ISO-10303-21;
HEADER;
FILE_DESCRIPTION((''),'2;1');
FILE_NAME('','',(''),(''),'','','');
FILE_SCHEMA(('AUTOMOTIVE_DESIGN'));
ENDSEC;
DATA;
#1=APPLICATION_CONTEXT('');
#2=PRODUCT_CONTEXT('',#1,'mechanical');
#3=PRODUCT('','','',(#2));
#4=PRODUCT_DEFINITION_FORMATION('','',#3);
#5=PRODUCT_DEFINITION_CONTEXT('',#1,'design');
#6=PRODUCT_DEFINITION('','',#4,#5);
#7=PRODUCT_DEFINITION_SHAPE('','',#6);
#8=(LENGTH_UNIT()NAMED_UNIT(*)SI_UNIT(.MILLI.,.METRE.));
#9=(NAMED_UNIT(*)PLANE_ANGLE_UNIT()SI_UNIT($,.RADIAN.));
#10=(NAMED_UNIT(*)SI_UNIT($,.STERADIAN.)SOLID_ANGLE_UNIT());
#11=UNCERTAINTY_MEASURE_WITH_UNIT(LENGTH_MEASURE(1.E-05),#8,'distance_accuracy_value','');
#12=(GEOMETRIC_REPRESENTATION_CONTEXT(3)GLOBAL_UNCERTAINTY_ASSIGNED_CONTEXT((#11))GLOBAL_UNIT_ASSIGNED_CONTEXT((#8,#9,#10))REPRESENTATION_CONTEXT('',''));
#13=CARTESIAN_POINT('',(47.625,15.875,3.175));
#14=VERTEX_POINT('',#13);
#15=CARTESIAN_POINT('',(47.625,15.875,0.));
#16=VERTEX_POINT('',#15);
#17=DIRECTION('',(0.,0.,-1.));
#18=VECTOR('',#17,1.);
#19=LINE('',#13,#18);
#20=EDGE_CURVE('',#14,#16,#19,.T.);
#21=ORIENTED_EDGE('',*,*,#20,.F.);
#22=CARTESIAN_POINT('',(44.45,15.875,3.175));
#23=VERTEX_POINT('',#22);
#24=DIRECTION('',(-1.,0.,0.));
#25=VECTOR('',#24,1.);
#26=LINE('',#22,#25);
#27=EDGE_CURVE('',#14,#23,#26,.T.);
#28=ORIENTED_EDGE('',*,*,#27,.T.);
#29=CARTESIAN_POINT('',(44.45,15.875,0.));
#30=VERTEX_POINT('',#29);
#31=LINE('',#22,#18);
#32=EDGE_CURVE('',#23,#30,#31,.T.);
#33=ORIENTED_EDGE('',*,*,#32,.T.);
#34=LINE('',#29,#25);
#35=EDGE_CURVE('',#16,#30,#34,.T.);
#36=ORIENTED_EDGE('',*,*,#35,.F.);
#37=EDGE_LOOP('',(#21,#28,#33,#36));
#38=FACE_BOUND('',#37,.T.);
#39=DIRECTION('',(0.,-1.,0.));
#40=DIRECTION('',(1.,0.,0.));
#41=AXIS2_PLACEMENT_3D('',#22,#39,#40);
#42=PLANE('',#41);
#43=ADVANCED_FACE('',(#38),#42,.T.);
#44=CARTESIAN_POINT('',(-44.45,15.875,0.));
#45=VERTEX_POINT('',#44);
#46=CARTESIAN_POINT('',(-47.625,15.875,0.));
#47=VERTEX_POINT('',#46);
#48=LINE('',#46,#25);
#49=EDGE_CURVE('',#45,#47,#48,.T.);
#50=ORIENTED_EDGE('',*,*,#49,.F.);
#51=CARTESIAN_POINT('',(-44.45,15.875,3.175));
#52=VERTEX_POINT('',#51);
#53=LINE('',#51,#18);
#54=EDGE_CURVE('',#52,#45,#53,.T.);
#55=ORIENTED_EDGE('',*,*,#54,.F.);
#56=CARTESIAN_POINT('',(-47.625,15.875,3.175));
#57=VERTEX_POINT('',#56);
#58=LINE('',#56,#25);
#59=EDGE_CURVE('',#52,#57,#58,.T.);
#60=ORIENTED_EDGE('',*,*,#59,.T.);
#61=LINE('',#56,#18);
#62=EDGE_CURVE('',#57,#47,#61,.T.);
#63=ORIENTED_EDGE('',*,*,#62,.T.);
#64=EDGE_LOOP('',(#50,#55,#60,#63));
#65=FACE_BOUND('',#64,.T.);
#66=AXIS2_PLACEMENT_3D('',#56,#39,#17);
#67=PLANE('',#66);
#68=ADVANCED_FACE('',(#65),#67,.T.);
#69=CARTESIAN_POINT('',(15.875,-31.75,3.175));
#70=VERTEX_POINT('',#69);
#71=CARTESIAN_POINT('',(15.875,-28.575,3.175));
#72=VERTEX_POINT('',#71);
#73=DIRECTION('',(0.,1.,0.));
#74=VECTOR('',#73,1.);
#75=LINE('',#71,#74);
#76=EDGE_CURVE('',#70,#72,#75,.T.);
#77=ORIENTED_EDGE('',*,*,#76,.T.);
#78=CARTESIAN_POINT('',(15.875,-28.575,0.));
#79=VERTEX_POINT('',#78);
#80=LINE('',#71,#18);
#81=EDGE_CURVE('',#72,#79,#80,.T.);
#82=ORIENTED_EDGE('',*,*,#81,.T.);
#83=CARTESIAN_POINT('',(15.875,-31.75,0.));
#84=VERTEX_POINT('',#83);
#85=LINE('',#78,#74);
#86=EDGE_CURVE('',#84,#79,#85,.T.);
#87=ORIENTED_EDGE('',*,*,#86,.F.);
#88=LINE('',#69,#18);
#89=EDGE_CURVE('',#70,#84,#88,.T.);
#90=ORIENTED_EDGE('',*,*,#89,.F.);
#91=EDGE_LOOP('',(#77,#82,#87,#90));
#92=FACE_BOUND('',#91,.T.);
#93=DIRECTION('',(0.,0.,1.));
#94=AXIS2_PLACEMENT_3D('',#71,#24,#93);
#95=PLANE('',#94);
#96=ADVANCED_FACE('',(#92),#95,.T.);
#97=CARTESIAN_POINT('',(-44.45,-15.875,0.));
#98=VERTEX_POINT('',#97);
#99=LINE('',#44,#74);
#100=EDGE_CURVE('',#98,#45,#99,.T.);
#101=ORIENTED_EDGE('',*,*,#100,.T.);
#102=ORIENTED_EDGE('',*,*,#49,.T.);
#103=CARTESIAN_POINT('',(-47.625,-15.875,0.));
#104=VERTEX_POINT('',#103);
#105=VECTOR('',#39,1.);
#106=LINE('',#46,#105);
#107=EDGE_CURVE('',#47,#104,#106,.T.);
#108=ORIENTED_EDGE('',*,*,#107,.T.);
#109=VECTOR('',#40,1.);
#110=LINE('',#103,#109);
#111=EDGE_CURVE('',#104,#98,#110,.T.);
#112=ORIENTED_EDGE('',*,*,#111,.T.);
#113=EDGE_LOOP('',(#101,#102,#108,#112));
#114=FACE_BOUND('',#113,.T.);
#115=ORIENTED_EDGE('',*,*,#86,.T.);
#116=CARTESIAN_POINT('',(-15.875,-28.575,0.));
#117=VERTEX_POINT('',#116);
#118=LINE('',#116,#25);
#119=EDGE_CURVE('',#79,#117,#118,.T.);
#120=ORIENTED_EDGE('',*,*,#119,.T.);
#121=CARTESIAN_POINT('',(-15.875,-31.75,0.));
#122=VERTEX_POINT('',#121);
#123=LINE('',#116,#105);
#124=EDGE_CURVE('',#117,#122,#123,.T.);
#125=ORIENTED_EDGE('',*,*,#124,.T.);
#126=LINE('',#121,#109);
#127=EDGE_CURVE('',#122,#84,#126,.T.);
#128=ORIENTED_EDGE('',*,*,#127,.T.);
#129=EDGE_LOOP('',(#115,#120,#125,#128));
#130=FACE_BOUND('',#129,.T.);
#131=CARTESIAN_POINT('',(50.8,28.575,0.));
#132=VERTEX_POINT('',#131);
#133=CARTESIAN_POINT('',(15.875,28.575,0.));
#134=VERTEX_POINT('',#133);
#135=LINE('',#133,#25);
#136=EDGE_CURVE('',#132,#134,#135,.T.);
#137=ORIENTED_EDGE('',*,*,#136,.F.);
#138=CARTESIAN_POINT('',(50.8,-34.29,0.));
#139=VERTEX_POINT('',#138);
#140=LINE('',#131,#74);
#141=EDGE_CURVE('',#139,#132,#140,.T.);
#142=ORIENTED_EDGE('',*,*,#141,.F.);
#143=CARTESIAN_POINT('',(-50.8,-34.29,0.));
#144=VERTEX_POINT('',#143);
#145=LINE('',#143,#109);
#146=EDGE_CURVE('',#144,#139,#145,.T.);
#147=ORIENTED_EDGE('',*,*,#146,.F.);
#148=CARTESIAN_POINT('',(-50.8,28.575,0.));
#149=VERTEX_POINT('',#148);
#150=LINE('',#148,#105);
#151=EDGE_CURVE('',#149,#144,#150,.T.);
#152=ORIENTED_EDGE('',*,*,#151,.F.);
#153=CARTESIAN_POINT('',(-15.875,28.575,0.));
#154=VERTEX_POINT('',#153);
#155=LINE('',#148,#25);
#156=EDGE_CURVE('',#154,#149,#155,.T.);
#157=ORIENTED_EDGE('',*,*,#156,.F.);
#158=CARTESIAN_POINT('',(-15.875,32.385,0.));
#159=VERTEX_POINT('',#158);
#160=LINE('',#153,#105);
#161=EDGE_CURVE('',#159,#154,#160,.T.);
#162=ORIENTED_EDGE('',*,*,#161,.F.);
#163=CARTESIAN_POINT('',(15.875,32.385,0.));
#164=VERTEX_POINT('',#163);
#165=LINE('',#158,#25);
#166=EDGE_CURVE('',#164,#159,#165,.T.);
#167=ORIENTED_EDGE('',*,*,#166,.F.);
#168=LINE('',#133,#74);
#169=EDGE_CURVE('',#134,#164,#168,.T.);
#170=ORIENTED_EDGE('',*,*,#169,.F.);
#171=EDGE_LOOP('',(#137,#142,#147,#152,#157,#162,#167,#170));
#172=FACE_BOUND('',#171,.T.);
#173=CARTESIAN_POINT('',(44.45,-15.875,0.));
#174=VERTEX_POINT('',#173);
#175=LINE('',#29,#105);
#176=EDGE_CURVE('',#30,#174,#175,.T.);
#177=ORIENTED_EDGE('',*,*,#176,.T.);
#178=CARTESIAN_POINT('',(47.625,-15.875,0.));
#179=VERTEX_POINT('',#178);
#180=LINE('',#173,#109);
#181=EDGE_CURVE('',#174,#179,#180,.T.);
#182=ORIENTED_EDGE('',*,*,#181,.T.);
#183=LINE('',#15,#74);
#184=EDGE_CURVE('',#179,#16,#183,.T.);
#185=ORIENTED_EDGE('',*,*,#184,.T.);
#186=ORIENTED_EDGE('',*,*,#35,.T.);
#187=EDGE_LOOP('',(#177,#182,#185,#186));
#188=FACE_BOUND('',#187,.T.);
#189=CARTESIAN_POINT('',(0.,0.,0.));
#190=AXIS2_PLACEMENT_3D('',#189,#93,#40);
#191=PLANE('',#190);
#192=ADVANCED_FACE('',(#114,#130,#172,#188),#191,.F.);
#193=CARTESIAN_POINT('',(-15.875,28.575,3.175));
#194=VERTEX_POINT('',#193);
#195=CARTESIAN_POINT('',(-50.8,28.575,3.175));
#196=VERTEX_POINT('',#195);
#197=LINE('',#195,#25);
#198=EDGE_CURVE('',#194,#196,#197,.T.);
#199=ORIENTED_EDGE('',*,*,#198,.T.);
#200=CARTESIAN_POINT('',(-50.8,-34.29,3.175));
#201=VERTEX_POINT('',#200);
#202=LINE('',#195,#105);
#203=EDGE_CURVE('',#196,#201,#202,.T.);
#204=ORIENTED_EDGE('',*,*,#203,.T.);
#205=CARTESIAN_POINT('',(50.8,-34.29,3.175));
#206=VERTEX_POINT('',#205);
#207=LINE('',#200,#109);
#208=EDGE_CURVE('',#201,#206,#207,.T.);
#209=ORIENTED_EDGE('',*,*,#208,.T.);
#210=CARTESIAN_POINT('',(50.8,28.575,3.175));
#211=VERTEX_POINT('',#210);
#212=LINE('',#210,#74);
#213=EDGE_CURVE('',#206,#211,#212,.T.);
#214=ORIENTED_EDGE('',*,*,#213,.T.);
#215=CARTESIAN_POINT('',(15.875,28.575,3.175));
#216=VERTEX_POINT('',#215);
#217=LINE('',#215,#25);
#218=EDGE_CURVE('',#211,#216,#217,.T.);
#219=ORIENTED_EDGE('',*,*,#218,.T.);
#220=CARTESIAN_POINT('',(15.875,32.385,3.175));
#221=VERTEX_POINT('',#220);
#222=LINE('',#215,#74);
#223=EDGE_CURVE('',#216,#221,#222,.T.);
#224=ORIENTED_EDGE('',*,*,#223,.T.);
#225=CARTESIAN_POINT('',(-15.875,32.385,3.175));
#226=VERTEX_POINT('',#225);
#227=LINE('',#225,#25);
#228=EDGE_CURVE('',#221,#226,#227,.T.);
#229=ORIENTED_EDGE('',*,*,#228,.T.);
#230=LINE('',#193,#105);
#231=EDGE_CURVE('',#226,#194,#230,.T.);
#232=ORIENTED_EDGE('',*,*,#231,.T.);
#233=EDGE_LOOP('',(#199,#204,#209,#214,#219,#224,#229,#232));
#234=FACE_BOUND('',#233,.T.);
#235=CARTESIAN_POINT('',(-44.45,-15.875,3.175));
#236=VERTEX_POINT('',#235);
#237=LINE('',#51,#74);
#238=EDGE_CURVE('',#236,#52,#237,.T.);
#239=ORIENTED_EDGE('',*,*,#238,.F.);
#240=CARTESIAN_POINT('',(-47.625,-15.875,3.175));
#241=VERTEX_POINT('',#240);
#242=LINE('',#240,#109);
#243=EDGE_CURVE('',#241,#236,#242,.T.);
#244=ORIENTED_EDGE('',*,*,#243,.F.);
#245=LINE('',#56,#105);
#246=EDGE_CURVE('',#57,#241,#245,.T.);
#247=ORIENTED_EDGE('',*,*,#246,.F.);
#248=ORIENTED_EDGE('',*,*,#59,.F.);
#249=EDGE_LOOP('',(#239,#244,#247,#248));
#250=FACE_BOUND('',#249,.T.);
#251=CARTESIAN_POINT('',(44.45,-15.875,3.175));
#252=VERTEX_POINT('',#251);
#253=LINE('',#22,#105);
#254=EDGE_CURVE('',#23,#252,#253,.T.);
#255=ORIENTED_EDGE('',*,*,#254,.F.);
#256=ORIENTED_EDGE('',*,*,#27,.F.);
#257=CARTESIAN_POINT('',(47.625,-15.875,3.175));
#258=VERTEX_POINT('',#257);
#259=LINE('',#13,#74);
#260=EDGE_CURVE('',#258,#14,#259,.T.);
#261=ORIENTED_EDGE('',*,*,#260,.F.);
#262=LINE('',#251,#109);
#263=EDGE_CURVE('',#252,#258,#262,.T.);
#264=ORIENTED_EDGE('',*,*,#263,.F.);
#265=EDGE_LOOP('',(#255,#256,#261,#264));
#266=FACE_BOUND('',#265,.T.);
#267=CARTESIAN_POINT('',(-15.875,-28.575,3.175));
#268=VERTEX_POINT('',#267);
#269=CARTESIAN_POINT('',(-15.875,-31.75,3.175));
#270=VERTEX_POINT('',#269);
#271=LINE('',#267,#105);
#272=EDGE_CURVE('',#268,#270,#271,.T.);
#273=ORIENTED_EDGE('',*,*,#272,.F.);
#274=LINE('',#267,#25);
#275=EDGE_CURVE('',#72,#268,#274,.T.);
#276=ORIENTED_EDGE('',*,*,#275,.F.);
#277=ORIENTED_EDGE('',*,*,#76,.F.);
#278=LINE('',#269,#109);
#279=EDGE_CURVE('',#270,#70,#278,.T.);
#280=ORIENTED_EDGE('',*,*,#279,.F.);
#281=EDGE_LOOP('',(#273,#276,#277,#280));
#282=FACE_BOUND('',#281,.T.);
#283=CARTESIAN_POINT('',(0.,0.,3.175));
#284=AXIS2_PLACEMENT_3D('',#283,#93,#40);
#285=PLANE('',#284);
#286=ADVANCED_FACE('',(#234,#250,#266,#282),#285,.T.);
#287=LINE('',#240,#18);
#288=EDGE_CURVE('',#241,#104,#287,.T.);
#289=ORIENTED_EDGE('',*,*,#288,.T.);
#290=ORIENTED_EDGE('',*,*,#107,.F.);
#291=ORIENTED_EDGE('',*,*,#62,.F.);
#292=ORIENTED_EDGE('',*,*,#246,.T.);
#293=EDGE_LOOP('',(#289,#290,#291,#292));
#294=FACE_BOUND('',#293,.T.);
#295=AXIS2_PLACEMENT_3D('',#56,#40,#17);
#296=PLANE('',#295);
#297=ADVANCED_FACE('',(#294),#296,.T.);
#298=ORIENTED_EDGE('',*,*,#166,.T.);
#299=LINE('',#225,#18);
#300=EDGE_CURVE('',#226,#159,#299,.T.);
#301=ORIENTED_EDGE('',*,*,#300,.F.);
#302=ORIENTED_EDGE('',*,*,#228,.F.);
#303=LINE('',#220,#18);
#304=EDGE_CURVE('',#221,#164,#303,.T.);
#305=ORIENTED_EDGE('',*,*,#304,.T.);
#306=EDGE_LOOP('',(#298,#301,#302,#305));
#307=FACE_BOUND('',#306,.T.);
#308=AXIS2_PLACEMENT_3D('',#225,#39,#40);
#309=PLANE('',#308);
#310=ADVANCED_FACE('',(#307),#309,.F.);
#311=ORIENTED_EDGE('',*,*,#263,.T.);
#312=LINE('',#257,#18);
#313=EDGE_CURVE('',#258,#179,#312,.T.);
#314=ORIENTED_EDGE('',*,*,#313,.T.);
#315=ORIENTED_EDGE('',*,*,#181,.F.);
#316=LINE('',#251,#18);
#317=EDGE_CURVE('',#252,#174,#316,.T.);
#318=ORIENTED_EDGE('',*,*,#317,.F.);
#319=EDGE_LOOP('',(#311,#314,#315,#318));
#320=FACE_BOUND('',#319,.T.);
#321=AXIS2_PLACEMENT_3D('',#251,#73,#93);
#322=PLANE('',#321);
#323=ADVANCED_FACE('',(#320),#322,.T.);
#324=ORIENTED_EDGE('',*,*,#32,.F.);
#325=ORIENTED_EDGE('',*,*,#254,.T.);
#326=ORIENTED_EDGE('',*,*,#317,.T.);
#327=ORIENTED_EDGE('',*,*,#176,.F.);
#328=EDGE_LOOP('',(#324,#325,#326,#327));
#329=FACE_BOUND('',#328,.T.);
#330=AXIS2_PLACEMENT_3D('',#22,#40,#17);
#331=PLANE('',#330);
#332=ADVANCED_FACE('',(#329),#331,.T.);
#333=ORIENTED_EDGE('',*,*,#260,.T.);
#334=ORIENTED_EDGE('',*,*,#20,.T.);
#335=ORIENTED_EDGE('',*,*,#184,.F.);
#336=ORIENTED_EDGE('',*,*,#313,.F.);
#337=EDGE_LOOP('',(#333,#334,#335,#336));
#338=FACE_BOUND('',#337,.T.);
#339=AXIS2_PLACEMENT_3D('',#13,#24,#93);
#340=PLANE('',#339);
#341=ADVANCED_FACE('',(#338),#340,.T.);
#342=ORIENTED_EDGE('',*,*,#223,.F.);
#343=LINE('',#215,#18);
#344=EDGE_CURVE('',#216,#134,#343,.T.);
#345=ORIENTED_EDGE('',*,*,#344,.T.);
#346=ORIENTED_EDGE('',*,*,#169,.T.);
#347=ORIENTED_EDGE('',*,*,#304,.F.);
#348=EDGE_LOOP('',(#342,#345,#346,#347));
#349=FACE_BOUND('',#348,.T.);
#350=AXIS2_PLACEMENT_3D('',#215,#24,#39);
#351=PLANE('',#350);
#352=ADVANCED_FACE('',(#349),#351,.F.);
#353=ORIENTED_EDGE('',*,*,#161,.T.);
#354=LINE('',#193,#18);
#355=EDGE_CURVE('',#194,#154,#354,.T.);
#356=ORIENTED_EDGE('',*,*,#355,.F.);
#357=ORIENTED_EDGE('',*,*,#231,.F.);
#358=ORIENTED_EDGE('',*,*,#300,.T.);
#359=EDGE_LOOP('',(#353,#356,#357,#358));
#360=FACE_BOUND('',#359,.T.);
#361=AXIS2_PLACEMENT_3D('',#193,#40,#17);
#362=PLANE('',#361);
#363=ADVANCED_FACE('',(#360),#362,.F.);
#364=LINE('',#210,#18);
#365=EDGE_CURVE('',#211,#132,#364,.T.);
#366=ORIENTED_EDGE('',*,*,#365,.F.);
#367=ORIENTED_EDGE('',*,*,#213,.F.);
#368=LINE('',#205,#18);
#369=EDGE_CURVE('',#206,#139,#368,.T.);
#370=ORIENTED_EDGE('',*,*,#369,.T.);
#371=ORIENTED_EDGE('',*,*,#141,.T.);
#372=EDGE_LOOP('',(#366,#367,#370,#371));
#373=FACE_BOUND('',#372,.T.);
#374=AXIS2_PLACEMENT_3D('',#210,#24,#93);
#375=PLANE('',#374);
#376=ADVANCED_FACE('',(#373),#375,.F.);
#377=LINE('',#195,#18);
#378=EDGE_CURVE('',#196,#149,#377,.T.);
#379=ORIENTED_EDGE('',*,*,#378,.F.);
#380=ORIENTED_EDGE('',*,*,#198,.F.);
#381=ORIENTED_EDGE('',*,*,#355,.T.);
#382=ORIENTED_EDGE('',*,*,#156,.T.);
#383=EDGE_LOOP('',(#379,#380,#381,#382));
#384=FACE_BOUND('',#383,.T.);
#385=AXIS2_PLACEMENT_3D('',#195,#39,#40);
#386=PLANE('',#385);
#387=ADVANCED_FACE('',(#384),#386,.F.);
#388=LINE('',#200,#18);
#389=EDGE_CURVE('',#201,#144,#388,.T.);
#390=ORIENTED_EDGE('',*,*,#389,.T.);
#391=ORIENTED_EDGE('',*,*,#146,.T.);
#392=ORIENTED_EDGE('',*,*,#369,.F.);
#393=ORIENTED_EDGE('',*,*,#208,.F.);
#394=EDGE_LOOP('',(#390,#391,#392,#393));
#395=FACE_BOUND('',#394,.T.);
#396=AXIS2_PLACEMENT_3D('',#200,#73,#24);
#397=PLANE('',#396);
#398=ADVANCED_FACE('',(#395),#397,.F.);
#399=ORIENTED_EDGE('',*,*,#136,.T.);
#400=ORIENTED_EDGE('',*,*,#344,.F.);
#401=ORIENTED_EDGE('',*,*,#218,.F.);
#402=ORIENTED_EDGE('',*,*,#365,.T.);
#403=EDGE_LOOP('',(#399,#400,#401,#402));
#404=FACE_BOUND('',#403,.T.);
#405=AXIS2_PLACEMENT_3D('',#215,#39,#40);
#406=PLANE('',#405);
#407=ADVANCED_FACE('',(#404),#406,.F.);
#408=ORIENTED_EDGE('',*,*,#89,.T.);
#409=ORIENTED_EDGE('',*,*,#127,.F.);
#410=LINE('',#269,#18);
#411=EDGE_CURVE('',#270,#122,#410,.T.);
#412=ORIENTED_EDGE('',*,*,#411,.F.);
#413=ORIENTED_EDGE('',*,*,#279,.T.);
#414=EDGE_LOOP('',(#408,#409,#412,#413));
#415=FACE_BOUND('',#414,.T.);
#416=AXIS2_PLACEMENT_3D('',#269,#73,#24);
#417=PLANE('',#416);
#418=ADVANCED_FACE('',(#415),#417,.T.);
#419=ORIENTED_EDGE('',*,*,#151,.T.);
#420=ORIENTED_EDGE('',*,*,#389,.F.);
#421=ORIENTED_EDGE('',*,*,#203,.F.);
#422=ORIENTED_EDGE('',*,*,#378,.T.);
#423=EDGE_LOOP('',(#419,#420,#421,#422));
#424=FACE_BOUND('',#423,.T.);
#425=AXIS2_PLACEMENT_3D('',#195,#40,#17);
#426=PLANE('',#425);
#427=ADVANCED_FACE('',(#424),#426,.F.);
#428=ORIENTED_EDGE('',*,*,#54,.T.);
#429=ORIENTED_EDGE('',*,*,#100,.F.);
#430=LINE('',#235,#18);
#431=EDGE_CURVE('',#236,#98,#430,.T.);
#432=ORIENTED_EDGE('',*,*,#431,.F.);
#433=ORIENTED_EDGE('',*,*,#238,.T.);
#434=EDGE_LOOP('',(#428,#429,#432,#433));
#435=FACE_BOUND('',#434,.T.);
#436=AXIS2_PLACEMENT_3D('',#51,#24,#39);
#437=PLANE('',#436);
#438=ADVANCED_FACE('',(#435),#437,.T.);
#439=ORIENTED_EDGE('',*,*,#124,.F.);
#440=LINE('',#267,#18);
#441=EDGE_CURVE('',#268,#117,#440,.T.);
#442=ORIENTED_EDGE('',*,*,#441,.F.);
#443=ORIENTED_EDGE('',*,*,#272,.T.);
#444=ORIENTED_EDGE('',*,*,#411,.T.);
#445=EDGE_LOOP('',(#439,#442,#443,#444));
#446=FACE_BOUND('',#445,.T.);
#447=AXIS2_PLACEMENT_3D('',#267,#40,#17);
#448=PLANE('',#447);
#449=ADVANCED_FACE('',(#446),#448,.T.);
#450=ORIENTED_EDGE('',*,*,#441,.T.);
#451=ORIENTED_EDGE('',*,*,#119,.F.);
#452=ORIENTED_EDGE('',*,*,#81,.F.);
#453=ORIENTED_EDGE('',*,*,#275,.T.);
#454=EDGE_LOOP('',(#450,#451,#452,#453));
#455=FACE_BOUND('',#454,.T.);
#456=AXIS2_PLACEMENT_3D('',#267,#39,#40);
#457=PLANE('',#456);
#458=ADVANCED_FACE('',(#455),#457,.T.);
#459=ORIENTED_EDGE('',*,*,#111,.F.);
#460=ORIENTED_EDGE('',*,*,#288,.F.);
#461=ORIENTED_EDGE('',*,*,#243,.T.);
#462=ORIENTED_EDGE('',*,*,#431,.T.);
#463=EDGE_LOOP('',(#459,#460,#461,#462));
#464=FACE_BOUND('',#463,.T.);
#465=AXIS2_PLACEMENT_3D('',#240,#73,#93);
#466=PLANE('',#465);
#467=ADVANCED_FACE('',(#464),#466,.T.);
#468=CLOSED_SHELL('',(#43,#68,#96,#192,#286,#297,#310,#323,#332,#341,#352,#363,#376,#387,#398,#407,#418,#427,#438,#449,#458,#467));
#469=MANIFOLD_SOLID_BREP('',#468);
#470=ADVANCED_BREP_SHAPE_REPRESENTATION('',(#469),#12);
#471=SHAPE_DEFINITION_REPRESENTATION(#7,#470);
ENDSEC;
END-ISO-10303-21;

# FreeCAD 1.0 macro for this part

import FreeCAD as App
import Part
import Sketcher

V = App.Vector
Q = App.Units.Quantity

doc = App.newDocument("Part")
body = doc.addObject("PartDesign::Body", "Body")

# Sketch on XY plane
sketch1 = body.newObject("Sketcher::SketchObject", "Sketch")
sketch1.AttachmentSupport = (doc.getObject("XY_Plane"), [""])
sketch1.MapMode = "FlatFace"
sketch1.addGeometry([
    Part.LineSegment(V(-15.9, 28.6, 0), V(-50.8, 28.6, 0)),  # 0
    Part.LineSegment(V(-50.8, 28.6, 0), V(-50.8, -34.3, 0)),  # 1
    Part.LineSegment(V(-50.8, -34.3, 0), V(50.8, -34.3, 0)),  # 2
    Part.LineSegment(V(50.8, -34.3, 0), V(50.8, 28.6, 0)),  # 3
    Part.LineSegment(V(50.8, 28.6, 0), V(15.9, 28.6, 0)),  # 4
    Part.LineSegment(V(15.9, 28.6, 0), V(15.9, 32.4, 0)),  # 5
    Part.LineSegment(V(15.9, 32.4, 0), V(-15.9, 32.4, 0)),  # 6
    Part.LineSegment(V(-15.9, 32.4, 0), V(-15.9, 28.6, 0)),  # 7
    Part.LineSegment(V(-15.9, -31.8, 0), V(-15.9, -28.6, 0)),  # 8
    Part.LineSegment(V(-15.9, -28.6, 0), V(15.9, -28.6, 0)),  # 9
    Part.LineSegment(V(15.9, -28.6, 0), V(15.9, -31.8, 0)),  # 10
    Part.LineSegment(V(15.9, -31.8, 0), V(-15.9, -31.8, 0)),  # 11
    Part.LineSegment(V(44.5, -15.9, 0), V(44.5, 15.9, 0)),  # 12
    Part.LineSegment(V(44.5, 15.9, 0), V(47.6, 15.9, 0)),  # 13
    Part.LineSegment(V(47.6, 15.9, 0), V(47.6, -15.9, 0)),  # 14
    Part.LineSegment(V(47.6, -15.9, 0), V(44.5, -15.9, 0)),  # 15
    Part.LineSegment(V(-47.6, -15.9, 0), V(-47.6, 15.9, 0)),  # 16
    Part.LineSegment(V(-47.6, 15.9, 0), V(-44.5, 15.9, 0)),  # 17
    Part.LineSegment(V(-44.5, 15.9, 0), V(-44.5, -15.9, 0)),  # 18
    Part.LineSegment(V(-44.5, -15.9, 0), V(-47.6, -15.9, 0)),  # 19
], False)
sketch1.addConstraint([
    Sketcher.Constraint("Coincident", 0, 2, 1, 1),
    Sketcher.Constraint("Coincident", 1, 2, 2, 1),
    Sketcher.Constraint("Coincident", 2, 2, 3, 1),
    Sketcher.Constraint("Coincident", 3, 2, 4, 1),
    Sketcher.Constraint("Coincident", 4, 2, 5, 1),
    Sketcher.Constraint("Coincident", 5, 2, 6, 1),
    Sketcher.Constraint("Coincident", 6, 2, 7, 1),
    Sketcher.Constraint("Coincident", 7, 2, 0, 1),
    Sketcher.Constraint("Coincident", 8, 2, 9, 1),
    Sketcher.Constraint("Coincident", 9, 2, 10, 1),
    Sketcher.Constraint("Coincident", 10, 2, 11, 1),
    Sketcher.Constraint("Coincident", 11, 2, 8, 1),
    Sketcher.Constraint("Coincident", 12, 2, 13, 1),
    Sketcher.Constraint("Coincident", 13, 2, 14, 1),
    Sketcher.Constraint("Coincident", 14, 2, 15, 1),
    Sketcher.Constraint("Coincident", 15, 2, 12, 1),
    Sketcher.Constraint("Coincident", 16, 2, 17, 1),
    Sketcher.Constraint("Coincident", 17, 2, 18, 1),
    Sketcher.Constraint("Coincident", 18, 2, 19, 1),
    Sketcher.Constraint("Coincident", 19, 2, 16, 1),
    Sketcher.Constraint("Horizontal", 0),
    Sketcher.Constraint("Vertical", 1),
    Sketcher.Constraint("Horizontal", 2),
    Sketcher.Constraint("Vertical", 3),
    Sketcher.Constraint("Horizontal", 4),
    Sketcher.Constraint("Vertical", 5),
    Sketcher.Constraint("Horizontal", 6),
    Sketcher.Constraint("Vertical", 7),
    Sketcher.Constraint("Vertical", 8),
    Sketcher.Constraint("Horizontal", 9),
    Sketcher.Constraint("Vertical", 10),
    Sketcher.Constraint("Horizontal", 11),
    Sketcher.Constraint("Vertical", 12),
    Sketcher.Constraint("Horizontal", 13),
    Sketcher.Constraint("Vertical", 14),
    Sketcher.Constraint("Horizontal", 15),
    Sketcher.Constraint("Vertical", 16),
    Sketcher.Constraint("Horizontal", 17),
    Sketcher.Constraint("Vertical", 18),
    Sketcher.Constraint("Horizontal", 19),
    Sketcher.Constraint("Symmetric", 4, 2, 8, 2, -1, 1),
    Sketcher.Constraint("Symmetric", 7, 2, 9, 2, -1, 1),
    Sketcher.Constraint("Symmetric", 14, 2, 16, 2, -1, 1),
    Sketcher.Constraint("Symmetric", 12, 2, 18, 2, -1, 1),
    Sketcher.Constraint("Horizontal", 13, 2, 16, 2),
    Sketcher.Constraint("Vertical", 7, 2, 8, 2),
    Sketcher.Constraint("Equal", 0, 4),
    Sketcher.Constraint("Equal", 19, 8),
    Sketcher.Constraint("Equal", 11, 12),
    Sketcher.Constraint("DistanceX", 2, 1, 2, 2, Q("4 in")),
    Sketcher.Constraint("DistanceX", 6, 2, 6, 1, Q("1.25 in")),
    Sketcher.Constraint("DistanceY", 5, 1, 5, 2, Q("0.15 in")),
    Sketcher.Constraint("DistanceY", 8, 2, 6, 2, Q("2.4 in")),
    Sketcher.Constraint("DistanceY", 2, 2, 10, 2, Q("0.1 in")),
    Sketcher.Constraint("DistanceX", 13, 1, 13, 2, Q("0.125 in")),
    Sketcher.Constraint("DistanceX", -1, 1, 12, 2, Q("1.75 in")),
])
pad1 = body.newObject("PartDesign::Pad", "Pad")
pad1.Profile = sketch1
pad1.Length = Q("0.125 in")

doc.recompute()
